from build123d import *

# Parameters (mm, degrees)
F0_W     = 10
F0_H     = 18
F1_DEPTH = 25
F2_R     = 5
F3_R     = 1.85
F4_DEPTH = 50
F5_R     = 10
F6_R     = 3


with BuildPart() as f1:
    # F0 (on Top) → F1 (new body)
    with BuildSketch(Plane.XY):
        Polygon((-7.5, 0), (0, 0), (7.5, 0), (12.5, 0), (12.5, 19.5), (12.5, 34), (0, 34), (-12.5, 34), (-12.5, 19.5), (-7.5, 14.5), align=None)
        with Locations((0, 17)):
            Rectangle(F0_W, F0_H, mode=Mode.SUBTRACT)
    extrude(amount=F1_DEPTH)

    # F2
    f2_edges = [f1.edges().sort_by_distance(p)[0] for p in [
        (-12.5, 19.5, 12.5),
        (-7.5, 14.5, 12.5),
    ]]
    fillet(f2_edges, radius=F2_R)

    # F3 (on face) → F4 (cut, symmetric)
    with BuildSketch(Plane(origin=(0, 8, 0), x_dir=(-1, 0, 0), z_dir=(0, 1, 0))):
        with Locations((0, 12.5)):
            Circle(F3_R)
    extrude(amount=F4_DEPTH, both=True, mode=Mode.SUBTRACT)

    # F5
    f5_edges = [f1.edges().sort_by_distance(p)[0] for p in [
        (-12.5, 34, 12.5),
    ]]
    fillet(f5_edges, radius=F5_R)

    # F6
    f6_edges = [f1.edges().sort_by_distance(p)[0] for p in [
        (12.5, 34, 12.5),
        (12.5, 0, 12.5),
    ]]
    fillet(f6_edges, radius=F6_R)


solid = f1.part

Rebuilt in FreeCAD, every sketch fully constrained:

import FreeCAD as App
import Part
import Sketcher

V = App.Vector
Q = App.Units.Quantity


def edges_at(feature, points):
    """Names of the edges that pass closest to the given points."""
    edges = feature.Shape.Edges
    near = lambda p: min(range(len(edges)), key=lambda i: edges[i].distToShape(Part.Vertex(*p))[0])
    return sorted({f"Edge{near(p) + 1}" for p in points})

doc = App.newDocument("Part")
body = doc.addObject("PartDesign::Body", "Body")

sketch1 = body.newObject("Sketcher::SketchObject", "Sketch")
sketch1.AttachmentSupport = (doc.getObject("XY_Plane"), [""])
sketch1.MapMode = "FlatFace"
sketch1.addGeometry(Part.LineSegment(V(-8, 0, 0), V(12, 0, 0)), False)
sketch1.addGeometry(Part.LineSegment(V(12, 0, 0), V(12, 34, 0)), False)
sketch1.addGeometry(Part.LineSegment(V(12, 34, 0), V(-12, 34, 0)), False)
sketch1.addGeometry(Part.LineSegment(V(-12, 34, 0), V(-12, 20, 0)), False)
sketch1.addGeometry(Part.LineSegment(V(-12, 20, 0), V(-8, 14, 0)), False)
sketch1.addGeometry(Part.LineSegment(V(-8, 14, 0), V(-8, 0, 0)), False)
sketch1.addGeometry(Part.LineSegment(V(5, 8, 0), V(-5, 8, 0)), False)
sketch1.addGeometry(Part.LineSegment(V(-5, 8, 0), V(-5, 26, 0)), False)
sketch1.addGeometry(Part.LineSegment(V(-5, 26, 0), V(5, 26, 0)), False)
sketch1.addGeometry(Part.LineSegment(V(5, 26, 0), V(5, 8, 0)), False)
sketch1.addConstraint(Sketcher.Constraint("Coincident", 0, 2, 1, 1))
sketch1.addConstraint(Sketcher.Constraint("Coincident", 1, 2, 2, 1))
sketch1.addConstraint(Sketcher.Constraint("Coincident", 2, 2, 3, 1))
sketch1.addConstraint(Sketcher.Constraint("Coincident", 3, 2, 4, 1))
sketch1.addConstraint(Sketcher.Constraint("Coincident", 4, 2, 5, 1))
sketch1.addConstraint(Sketcher.Constraint("Coincident", 5, 2, 0, 1))
sketch1.addConstraint(Sketcher.Constraint("Coincident", 6, 2, 7, 1))
sketch1.addConstraint(Sketcher.Constraint("Coincident", 7, 2, 8, 1))
sketch1.addConstraint(Sketcher.Constraint("Coincident", 8, 2, 9, 1))
sketch1.addConstraint(Sketcher.Constraint("Coincident", 9, 2, 6, 1))
sketch1.addConstraint(Sketcher.Constraint("Horizontal", 0))
sketch1.addConstraint(Sketcher.Constraint("Vertical", 1))
sketch1.addConstraint(Sketcher.Constraint("Horizontal", 2))
sketch1.addConstraint(Sketcher.Constraint("Vertical", 3))
sketch1.addConstraint(Sketcher.Constraint("Vertical", 5))
sketch1.addConstraint(Sketcher.Constraint("Horizontal", 6))
sketch1.addConstraint(Sketcher.Constraint("Vertical", 7))
sketch1.addConstraint(Sketcher.Constraint("Horizontal", 8))
sketch1.addConstraint(Sketcher.Constraint("Vertical", 9))
sketch1.addConstraint(Sketcher.Constraint("PointOnObject", 0, 2, -1))
sketch1.addConstraint(Sketcher.Constraint("Equal", 3, 5))
sketch1.addConstraint(Sketcher.Constraint("DistanceX", 0, 1, 0, 2, Q("20 mm")))
sketch1.addConstraint(Sketcher.Constraint("DistanceX", 2, 2, 2, 1, Q("25 mm")))
sketch1.addConstraint(Sketcher.Constraint("DistanceX", 6, 2, 6, 1, Q("10 mm")))
sketch1.addConstraint(Sketcher.Constraint("DistanceY", 1, 1, 1, 2, Q("34 mm")))
sketch1.addConstraint(Sketcher.Constraint("DistanceY", 7, 1, 7, 2, Q("18 mm")))
sketch1.addConstraint(Sketcher.Constraint("Angle", 4, Q("-45 deg")))
sketch1.addConstraint(Sketcher.Constraint("DistanceX", 6, 2, -1, 1, Q("5 mm")))
sketch1.addConstraint(Sketcher.Constraint("DistanceY", -1, 1, 6, 2, Q("8 mm")))
sketch1.addConstraint(Sketcher.Constraint("DistanceX", -1, 1, 0, 2, Q("12.5 mm")))
pad1 = body.newObject("PartDesign::Pad", "Pad")
pad1.Profile = sketch1
pad1.Length = 25
doc.recompute()

fillet = body.newObject("PartDesign::Fillet", "Fillet")
fillet.Base = (pad1, edges_at(pad1, [(-12.5, 19.5, 12.5), (-7.5, 14.5, 12.5)]))
fillet.Radius = 5

sketch2 = body.newObject("Sketcher::SketchObject", "Sketch001")
sketch2.AttachmentSupport = (doc.getObject("XZ_Plane"), [""])
sketch2.MapMode = "FlatFace"
sketch2.AttachmentOffset = App.Placement(V(0, 0, -8), App.Rotation())
sketch2.addGeometry(Part.Circle(V(0, 12.5, 0), V(0, 0, 1), 1.9), False)
sketch2.addConstraint(Sketcher.Constraint("PointOnObject", 0, 3, -2))
sketch2.addConstraint(Sketcher.Constraint("Diameter", 0, Q("3.7 mm")))
sketch2.addConstraint(Sketcher.Constraint("DistanceY", -1, 1, 0, 3, Q("12.5 mm")))
pocket1 = body.newObject("PartDesign::Pocket", "Pocket")
pocket1.Profile = sketch2
pocket1.Length = 100
pocket1.Midplane = True
doc.recompute()

fillet2 = body.newObject("PartDesign::Fillet", "Fillet001")
fillet2.Base = (pocket1, edges_at(pocket1, [(-12.5, 34, 12.5)]))
fillet2.Radius = 10
doc.recompute()

fillet3 = body.newObject("PartDesign::Fillet", "Fillet002")
fillet3.Base = (fillet2, edges_at(fillet2, [(12.5, 34, 12.5), (12.5, 0, 12.5)]))
fillet3.Radius = 3

doc.recompute()
